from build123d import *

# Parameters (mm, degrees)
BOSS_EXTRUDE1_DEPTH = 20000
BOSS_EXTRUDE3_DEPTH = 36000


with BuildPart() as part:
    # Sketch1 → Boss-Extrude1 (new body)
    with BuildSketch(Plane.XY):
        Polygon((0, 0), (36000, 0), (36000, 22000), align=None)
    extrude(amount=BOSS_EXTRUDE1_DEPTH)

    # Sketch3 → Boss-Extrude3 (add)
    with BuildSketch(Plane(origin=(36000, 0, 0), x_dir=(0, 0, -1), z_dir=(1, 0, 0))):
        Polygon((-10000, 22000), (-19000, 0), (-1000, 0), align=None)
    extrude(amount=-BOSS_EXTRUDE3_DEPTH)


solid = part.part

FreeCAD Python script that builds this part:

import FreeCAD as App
import Part
import Sketcher
from FreeCAD import Vector

doc = App.newDocument("Part")
body = doc.addObject("PartDesign::Body", "Body")

sketch1 = doc.addObject("Sketcher::SketchObject", "Sketch")
body.addObject(sketch1)
sketch1.AttachmentSupport = (doc.XY_Plane, [""])
sketch1.MapMode = "FlatFace"
sketch1.addGeometry(Part.LineSegment(Vector(0, 0, 0), Vector(36000, 0, 0)), False)
sketch1.addGeometry(Part.LineSegment(Vector(36000, 0, 0), Vector(36000, 22000, 0)), False)
sketch1.addGeometry(Part.LineSegment(Vector(36000, 22000, 0), Vector(0, 0, 0)), False)
sketch1.addConstraint(Sketcher.Constraint("Coincident", 0, 2, 1, 1))
sketch1.addConstraint(Sketcher.Constraint("Coincident", 1, 2, 2, 1))
sketch1.addConstraint(Sketcher.Constraint("Coincident", 2, 2, 0, 1))
sketch1.addConstraint(Sketcher.Constraint("Horizontal", 0))
sketch1.addConstraint(Sketcher.Constraint("Vertical", 1))
sketch1.addConstraint(Sketcher.Constraint("Coincident", 2, 2, -1, 1))
sketch1.addConstraint(Sketcher.Constraint("DistanceX", 0, 1, 0, 2, 36000.0))
sketch1.addConstraint(Sketcher.Constraint("DistanceY", 1, 1, 1, 2, 22000.0))
pad1 = doc.addObject("PartDesign::Pad", "Pad")
body.addObject(pad1)
pad1.Profile = sketch1
pad1.Length = 20000

sketch2 = doc.addObject("Sketcher::SketchObject", "Sketch001")
body.addObject(sketch2)
sketch2.AttachmentSupport = (doc.YZ_Plane, [""])
sketch2.MapMode = "FlatFace"
sketch2.AttachmentOffset = App.Placement(Vector(0, 0, 36000), App.Rotation())
sketch2.addGeometry(Part.LineSegment(Vector(22000, 10000, 0), Vector(0, 19000, 0)), False)
sketch2.addGeometry(Part.LineSegment(Vector(0, 19000, 0), Vector(0, 1000, 0)), False)
sketch2.addGeometry(Part.LineSegment(Vector(0, 1000, 0), Vector(22000, 10000, 0)), False)
sketch2.addConstraint(Sketcher.Constraint("Coincident", 0, 2, 1, 1))
sketch2.addConstraint(Sketcher.Constraint("Coincident", 1, 2, 2, 1))
sketch2.addConstraint(Sketcher.Constraint("Coincident", 2, 2, 0, 1))
sketch2.addConstraint(Sketcher.Constraint("Vertical", 1))
sketch2.addConstraint(Sketcher.Constraint("PointOnObject", 0, 2, -2))
sketch2.addConstraint(Sketcher.Constraint("Equal", 0, 2))
sketch2.addConstraint(Sketcher.Constraint("DistanceY", 1, 2, 1, 1, 18000.0))
sketch2.addConstraint(Sketcher.Constraint("DistanceY", -1, 1, 0, 2, 19000.0))
sketch2.addConstraint(Sketcher.Constraint("DistanceX", -1, 1, 2, 2, 22000.0))
pad2 = doc.addObject("PartDesign::Pad", "Pad001")
body.addObject(pad2)
pad2.Profile = sketch2
pad2.Length = 36000
pad2.Reversed = True

doc.recompute()
